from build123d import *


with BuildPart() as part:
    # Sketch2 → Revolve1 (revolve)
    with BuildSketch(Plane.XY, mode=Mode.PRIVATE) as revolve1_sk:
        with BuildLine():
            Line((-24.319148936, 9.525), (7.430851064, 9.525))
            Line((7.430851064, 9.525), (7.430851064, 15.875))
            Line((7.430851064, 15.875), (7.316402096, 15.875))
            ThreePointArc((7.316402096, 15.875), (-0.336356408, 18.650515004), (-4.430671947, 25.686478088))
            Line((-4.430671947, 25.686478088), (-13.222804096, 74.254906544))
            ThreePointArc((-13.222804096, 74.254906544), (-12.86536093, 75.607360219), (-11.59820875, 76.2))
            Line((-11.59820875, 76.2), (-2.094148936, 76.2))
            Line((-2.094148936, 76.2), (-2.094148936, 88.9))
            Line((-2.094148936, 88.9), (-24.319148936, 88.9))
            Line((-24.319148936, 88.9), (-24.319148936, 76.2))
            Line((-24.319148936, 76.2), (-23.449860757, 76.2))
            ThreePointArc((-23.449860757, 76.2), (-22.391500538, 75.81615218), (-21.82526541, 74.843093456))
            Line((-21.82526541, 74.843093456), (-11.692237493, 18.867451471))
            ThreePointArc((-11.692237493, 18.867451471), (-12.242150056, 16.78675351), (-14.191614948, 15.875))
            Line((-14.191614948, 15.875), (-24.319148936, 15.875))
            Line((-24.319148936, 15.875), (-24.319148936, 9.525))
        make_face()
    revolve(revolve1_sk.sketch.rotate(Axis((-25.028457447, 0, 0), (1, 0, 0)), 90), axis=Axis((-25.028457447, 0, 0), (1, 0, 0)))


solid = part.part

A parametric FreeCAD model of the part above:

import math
import FreeCAD as App
import Part
import Sketcher

V = App.Vector
Q = App.Units.Quantity

doc = App.newDocument("Part")
body = doc.addObject("PartDesign::Body", "Body")

sketch1 = body.newObject("Sketcher::SketchObject", "Sketch")
sketch1.AttachmentSupport = (doc.getObject("XY_Plane"), [""])
sketch1.MapMode = "FlatFace"
sketch1.addGeometry(Part.LineSegment(V(-24.32, 9.53, 0), V(7.43, 9.53, 0)), False)
sketch1.addGeometry(Part.LineSegment(V(7.43, 9.53, 0), V(7.43, 15.88, 0)), False)
sketch1.addGeometry(Part.LineSegment(V(7.43, 15.88, 0), V(7.32, 15.88, 0)), False)
sketch1.addGeometry(Part.ArcOfCircle(Part.Circle(V(7.32, 27.81, 0), V(0, 0, 1), 11.94), math.radians(-170), math.radians(-90)), False)
sketch1.addGeometry(Part.LineSegment(V(-4.43, 25.69, 0), V(-13.22, 74.25, 0)), False)
sketch1.addGeometry(Part.ArcOfCircle(Part.Circle(V(-11.6, 74.55, 0), V(0, 0, 1), 1.65), math.radians(90), math.radians(190)), False)
sketch1.addGeometry(Part.LineSegment(V(-11.6, 76.2, 0), V(-2.09, 76.2, 0)), False)
sketch1.addGeometry(Part.LineSegment(V(-2.09, 76.2, 0), V(-2.09, 88.9, 0)), False)
sketch1.addGeometry(Part.LineSegment(V(-2.09, 88.9, 0), V(-24.32, 88.9, 0)), False)
sketch1.addGeometry(Part.LineSegment(V(-24.32, 88.9, 0), V(-24.32, 76.2, 0)), False)
sketch1.addGeometry(Part.LineSegment(V(-24.32, 76.2, 0), V(-23.45, 76.2, 0)), False)
sketch1.addGeometry(Part.ArcOfCircle(Part.Circle(V(-23.45, 74.55, 0), V(0, 0, 1), 1.65), math.radians(10), math.radians(90)), False)
sketch1.addGeometry(Part.LineSegment(V(-21.83, 74.84, 0), V(-11.69, 18.87, 0)), False)
sketch1.addGeometry(Part.ArcOfCircle(Part.Circle(V(-14.19, 18.41, 0), V(0, 0, 1), 2.54), math.radians(-90), math.radians(10)), False)
sketch1.addGeometry(Part.LineSegment(V(-14.19, 15.88, 0), V(-24.32, 15.88, 0)), False)
sketch1.addGeometry(Part.LineSegment(V(-24.32, 15.88, 0), V(-24.32, 9.53, 0)), False)
sketch1.addConstraint(Sketcher.Constraint("Coincident", 0, 2, 1, 1))
sketch1.addConstraint(Sketcher.Constraint("Coincident", 1, 2, 2, 1))
sketch1.addConstraint(Sketcher.Constraint("Tangent", 2, 2, 3, 2))
sketch1.addConstraint(Sketcher.Constraint("Tangent", 3, 1, 4, 1))
sketch1.addConstraint(Sketcher.Constraint("Tangent", 4, 2, 5, 2))
sketch1.addConstraint(Sketcher.Constraint("Tangent", 5, 1, 6, 1))
sketch1.addConstraint(Sketcher.Constraint("Coincident", 6, 2, 7, 1))
sketch1.addConstraint(Sketcher.Constraint("Coincident", 7, 2, 8, 1))
sketch1.addConstraint(Sketcher.Constraint("Coincident", 8, 2, 9, 1))
sketch1.addConstraint(Sketcher.Constraint("Coincident", 9, 2, 10, 1))
sketch1.addConstraint(Sketcher.Constraint("Tangent", 10, 2, 11, 2))
sketch1.addConstraint(Sketcher.Constraint("Tangent", 11, 1, 12, 1))
sketch1.addConstraint(Sketcher.Constraint("Tangent", 12, 2, 13, 2))
sketch1.addConstraint(Sketcher.Constraint("Tangent", 13, 1, 14, 1))
sketch1.addConstraint(Sketcher.Constraint("Coincident", 14, 2, 15, 1))
sketch1.addConstraint(Sketcher.Constraint("Coincident", 15, 2, 0, 1))
sketch1.addConstraint(Sketcher.Constraint("Horizontal", 0))
sketch1.addConstraint(Sketcher.Constraint("Vertical", 1))
sketch1.addConstraint(Sketcher.Constraint("Horizontal", 2))
sketch1.addConstraint(Sketcher.Constraint("Horizontal", 6))
sketch1.addConstraint(Sketcher.Constraint("Vertical", 7))
sketch1.addConstraint(Sketcher.Constraint("Horizontal", 8))
sketch1.addConstraint(Sketcher.Constraint("Vertical", 9))
sketch1.addConstraint(Sketcher.Constraint("Horizontal", 10))
sketch1.addConstraint(Sketcher.Constraint("Horizontal", 14))
sketch1.addConstraint(Sketcher.Constraint("Vertical", 15))
sketch1.addConstraint(Sketcher.Constraint("Equal", 5, 11))
sketch1.addConstraint(Sketcher.Constraint("Parallel", 4, 12))
sketch1.addConstraint(Sketcher.Constraint("Horizontal", 5, 3, 11, 3))
sketch1.addConstraint(Sketcher.Constraint("Horizontal", 2, 2, 13, 1))
sketch1.addConstraint(Sketcher.Constraint("Vertical", 9, 2, 14, 2))
sketch1.addConstraint(Sketcher.Constraint("Radius", 13, Q("0.1 in")))
sketch1.addConstraint(Sketcher.Constraint("Radius", 3, Q("0.47 in")))
sketch1.addConstraint(Sketcher.Constraint("DistanceY", 7, 1, 7, 2, Q("0.5 in")))
sketch1.addConstraint(Sketcher.Constraint("DistanceY", -1, 1, 5, 1, Q("3 in")))
sketch1.addConstraint(Sketcher.Constraint("Radius", 5, Q("0.065 in")))
sketch1.addConstraint(Sketcher.Constraint("DistanceX", 0, 1, 0, 2, Q("1.25 in")))
sketch1.addConstraint(Sketcher.Constraint("DistanceY", 1, 1, 1, 2, Q("0.25 in")))
sketch1.addConstraint(Sketcher.Constraint("DistanceX", 8, 2, 8, 1, Q("0.875 in")))
sketch1.addConstraint(Sketcher.Constraint("DistanceY", 3, 3, 5, 3, Q("1.84 in")))
sketch1.addConstraint(Sketcher.Constraint("DistanceX", 2, 2, 2, 1, 0.114449))
sketch1.addConstraint(Sketcher.Constraint("DistanceX", 6, 1, 6, 2, 9.50406))
sketch1.addConstraint(Sketcher.Constraint("DistanceX", 10, 1, 10, 2, 0.869288))
sketch1.addConstraint(Sketcher.Constraint("DistanceX", 5, 3, -1, 1, 11.598209))
revolution = body.newObject("PartDesign::Revolution", "Revolution")
revolution.Profile = sketch1
revolution.ReferenceAxis = (sketch1, ["H_Axis"])
revolution.Angle = 360

doc.recompute()
